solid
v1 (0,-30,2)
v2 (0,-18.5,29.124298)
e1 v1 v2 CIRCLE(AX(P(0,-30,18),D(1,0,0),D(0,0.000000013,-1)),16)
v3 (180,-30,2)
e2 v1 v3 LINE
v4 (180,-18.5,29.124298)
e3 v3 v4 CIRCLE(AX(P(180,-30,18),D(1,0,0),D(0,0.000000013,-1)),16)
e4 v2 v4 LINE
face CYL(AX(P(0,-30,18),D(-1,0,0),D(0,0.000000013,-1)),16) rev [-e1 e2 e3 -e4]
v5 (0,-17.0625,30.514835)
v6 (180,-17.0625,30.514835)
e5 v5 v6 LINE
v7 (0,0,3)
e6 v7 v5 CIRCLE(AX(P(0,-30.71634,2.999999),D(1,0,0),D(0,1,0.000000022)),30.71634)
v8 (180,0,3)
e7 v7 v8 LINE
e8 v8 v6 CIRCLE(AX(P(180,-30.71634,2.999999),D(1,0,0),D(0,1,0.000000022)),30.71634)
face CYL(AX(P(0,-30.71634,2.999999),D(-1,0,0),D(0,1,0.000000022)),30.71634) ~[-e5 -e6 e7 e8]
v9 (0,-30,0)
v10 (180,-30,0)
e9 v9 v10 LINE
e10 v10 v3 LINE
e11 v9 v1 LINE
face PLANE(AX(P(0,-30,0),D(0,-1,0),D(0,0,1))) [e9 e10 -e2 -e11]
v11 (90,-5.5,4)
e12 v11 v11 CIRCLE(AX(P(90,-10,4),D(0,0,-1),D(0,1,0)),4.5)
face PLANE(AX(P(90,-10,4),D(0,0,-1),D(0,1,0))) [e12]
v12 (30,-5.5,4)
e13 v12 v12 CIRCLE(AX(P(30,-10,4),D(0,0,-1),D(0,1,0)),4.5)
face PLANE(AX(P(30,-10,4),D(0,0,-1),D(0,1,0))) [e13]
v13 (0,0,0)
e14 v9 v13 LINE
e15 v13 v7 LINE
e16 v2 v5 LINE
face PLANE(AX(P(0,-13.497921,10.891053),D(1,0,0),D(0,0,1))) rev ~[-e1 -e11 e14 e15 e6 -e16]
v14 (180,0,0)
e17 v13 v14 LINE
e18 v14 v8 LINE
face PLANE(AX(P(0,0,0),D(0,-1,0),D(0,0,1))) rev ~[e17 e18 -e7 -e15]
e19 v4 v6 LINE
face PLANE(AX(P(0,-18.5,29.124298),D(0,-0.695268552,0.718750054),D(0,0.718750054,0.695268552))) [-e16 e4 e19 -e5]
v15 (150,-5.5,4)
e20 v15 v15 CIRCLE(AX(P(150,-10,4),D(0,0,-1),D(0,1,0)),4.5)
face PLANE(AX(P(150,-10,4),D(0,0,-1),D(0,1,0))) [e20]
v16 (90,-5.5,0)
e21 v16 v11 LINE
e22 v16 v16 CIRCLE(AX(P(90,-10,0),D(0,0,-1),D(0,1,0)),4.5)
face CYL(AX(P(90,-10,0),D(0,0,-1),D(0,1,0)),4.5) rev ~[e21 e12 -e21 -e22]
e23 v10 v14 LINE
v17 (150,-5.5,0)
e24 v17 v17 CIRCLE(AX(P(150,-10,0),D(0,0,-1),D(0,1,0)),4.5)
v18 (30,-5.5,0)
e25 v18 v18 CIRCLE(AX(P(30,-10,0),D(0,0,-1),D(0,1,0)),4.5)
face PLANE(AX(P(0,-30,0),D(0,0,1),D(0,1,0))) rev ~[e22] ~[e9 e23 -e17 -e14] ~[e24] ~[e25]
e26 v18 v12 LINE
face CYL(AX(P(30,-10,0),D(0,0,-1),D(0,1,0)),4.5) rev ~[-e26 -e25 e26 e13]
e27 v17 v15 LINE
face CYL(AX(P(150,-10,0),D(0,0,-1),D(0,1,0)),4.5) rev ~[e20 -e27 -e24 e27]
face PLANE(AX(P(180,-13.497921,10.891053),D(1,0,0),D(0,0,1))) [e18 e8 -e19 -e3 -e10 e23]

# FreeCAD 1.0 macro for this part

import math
import FreeCAD as App
import Part
import Sketcher

doc = App.newDocument("Part")
body = doc.addObject("PartDesign::Body", "Body")

# Sketch on YZ plane
sketch1 = body.newObject("Sketcher::SketchObject", "Sketch")
sketch1.AttachmentSupport = (doc.getObject("YZ_Plane"), [""])
sketch1.MapMode = "FlatFace"
sketch1.addGeometry([
    Part.LineSegment(App.Vector(0, 30, 0), App.Vector(0, 0, 0)),  # 0
    Part.LineSegment(App.Vector(0, 0, 0), App.Vector(3, 0, 0)),  # 1
    Part.ArcOfCircle(Part.Circle(App.Vector(3, 30.7, 0), App.Vector(0, 0, 1), 30.7), math.radians(-90), math.radians(-26)),  # 2
    Part.LineSegment(App.Vector(30.5, 17.1, 0), App.Vector(29.1, 18.5, 0)),  # 3
    Part.ArcOfCircle(Part.Circle(App.Vector(18, 30, 0), App.Vector(0, 0, 1), 16), math.radians(-180), math.radians(-46)),  # 4
    Part.LineSegment(App.Vector(2, 30, 0), App.Vector(0, 30, 0)),  # 5
], False)
sketch1.addConstraint([
    Sketcher.Constraint("Coincident", 0, 2, 1, 1),
    Sketcher.Constraint("Tangent", 1, 2, 2, 1),
    Sketcher.Constraint("Coincident", 2, 2, 3, 1),
    Sketcher.Constraint("Coincident", 3, 2, 4, 2),
    Sketcher.Constraint("Coincident", 4, 1, 5, 1),
    Sketcher.Constraint("Coincident", 5, 2, 0, 1),
    Sketcher.Constraint("Vertical", 0),
    Sketcher.Constraint("Horizontal", 1),
    Sketcher.Constraint("Horizontal", 5),
    Sketcher.Constraint("Coincident", 0, 2, -1, 1),
    Sketcher.Constraint("Radius", 4, 16.0),
    Sketcher.Constraint("DistanceX", 1, 1, 1, 2, 3.0),
    Sketcher.Constraint("DistanceX", 5, 2, 5, 1, 2.0),
    Sketcher.Constraint("DistanceY", 0, 2, 0, 1, 30.0),
    Sketcher.Constraint("Distance", 3, 2.0),
    Sketcher.Constraint("DistanceY", -1, 1, 4, 3, 30.0),
    Sketcher.Constraint("DistanceY", -1, 1, 3, 2, 18.5),
    Sketcher.Constraint("Radius", 2, 30.71634),
])
pad1 = body.newObject("PartDesign::Pad", "Pad")
pad1.Profile = sketch1
pad1.Length = 180

# Sketch on XZ plane
sketch2 = body.newObject("Sketcher::SketchObject", "Sketch001")
sketch2.AttachmentSupport = (doc.getObject("XZ_Plane"), [""])
sketch2.MapMode = "FlatFace"
sketch2.addGeometry(Part.Circle(App.Vector(30, 10, 0), App.Vector(0, 0, 1), 4.5), False)
sketch2.addConstraint([
    Sketcher.Constraint("Diameter", 0, 9.0),
    Sketcher.Constraint("DistanceX", -1, 1, 0, 3, 30.0),
    Sketcher.Constraint("DistanceY", -1, 1, 0, 3, 10.0),
])
pocket1 = body.newObject("PartDesign::Pocket", "Pocket")
pocket1.Profile = sketch2
pocket1.Length = 4
doc.recompute()

linearpattern = body.newObject("PartDesign::LinearPattern", "LinearPattern")
linearpattern.Originals = [pocket1]
linearpattern.Direction = (doc.getObject("X_Axis"), [""])
linearpattern.Mode = "offset"
linearpattern.Offset = 60
linearpattern.Occurrences = 3
body.Tip = linearpattern
body2 = doc.addObject("PartDesign::Body", "Body001")
doc.recompute()

body.Placement = App.Placement(App.Vector(0, 0, 0), App.Rotation(App.Vector(1, 0, 0), 90))
boolean = body2.newObject("PartDesign::Boolean", "Boolean")
boolean.Type = "Fuse"
boolean.addObjects([body])

doc.recompute()
